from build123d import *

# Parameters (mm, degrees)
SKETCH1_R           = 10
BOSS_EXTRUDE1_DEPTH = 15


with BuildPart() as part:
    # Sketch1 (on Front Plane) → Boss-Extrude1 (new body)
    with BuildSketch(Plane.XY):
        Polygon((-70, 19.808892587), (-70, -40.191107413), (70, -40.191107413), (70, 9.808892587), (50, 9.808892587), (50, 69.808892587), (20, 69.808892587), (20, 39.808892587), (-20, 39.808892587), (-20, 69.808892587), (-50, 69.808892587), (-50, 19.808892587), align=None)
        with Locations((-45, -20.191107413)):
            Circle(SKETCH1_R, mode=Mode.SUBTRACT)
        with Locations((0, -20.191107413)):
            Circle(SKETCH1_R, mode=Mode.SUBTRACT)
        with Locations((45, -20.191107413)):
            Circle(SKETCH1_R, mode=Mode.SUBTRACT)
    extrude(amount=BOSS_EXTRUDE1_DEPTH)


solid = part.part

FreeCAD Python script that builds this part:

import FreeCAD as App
import Part
import Sketcher
from FreeCAD import Vector
Q = App.Units.Quantity


def add_polygon(sketch, points):
    """Adds a closed chain of lines whose ends are joined by coincident constraints."""
    first, n = sketch.GeometryCount, len(points)
    for a, b in zip(points, points[1:] + points[:1]):
        sketch.addGeometry(Part.LineSegment(App.Vector(*a, 0), App.Vector(*b, 0)), False)
    for i in range(n):
        sketch.addConstraint(Sketcher.Constraint("Coincident", first + i, 2, first + (i + 1) % n, 1))

doc = App.newDocument("Part")
params = doc.addObject("Spreadsheet::Sheet", "Params")
for row, (alias, value) in enumerate([
    ("sketch1_diameter", "20 mm"),
    ("sketch1_width", "140 mm"),
    ("sketch1_width2", "20 mm"),
    ("sketch1_width3", "30 mm"),
    ("sketch1_height", "60 mm"),
    ("pad1_length", "15 mm"),
], start=1):
    params.set(f"A{row}", alias)
    params.set(f"B{row}", "=" + value)
    params.setAlias(f"B{row}", alias)

body = doc.addObject("PartDesign::Body", "Body")

# Sketch on XY plane
sketch1 = body.newObject("Sketcher::SketchObject", "Sketch")
sketch1.AttachmentSupport = (doc.getObject("XY_Plane"), [""])
sketch1.MapMode = "FlatFace"
add_polygon(sketch1, [(-70, 19.808893), (-70, -40.191107), (70, -40.191107), (70, 9.808893), (50, 9.808893), (50, 69.808893), (20, 69.808893), (20, 39.808893), (-20, 39.808893), (-20, 69.808893), (-50, 69.808893), (-50, 19.808893)])  # lines 0-11
sketch1.addGeometry(Part.Circle(Vector(-45, -20.191107, 0), Vector(0, 0, 1), 10), False)  # 12
sketch1.addGeometry(Part.Circle(Vector(0, -20.191107, 0), Vector(0, 0, 1), 10), False)  # 13
sketch1.addGeometry(Part.Circle(Vector(45, -20.191107, 0), Vector(0, 0, 1), 10), False)  # 14
sketch1.addConstraint(Sketcher.Constraint("Vertical", 0))
sketch1.addConstraint(Sketcher.Constraint("Horizontal", 1))
sketch1.addConstraint(Sketcher.Constraint("Vertical", 2))
sketch1.addConstraint(Sketcher.Constraint("Horizontal", 3))
sketch1.addConstraint(Sketcher.Constraint("Vertical", 4))
sketch1.addConstraint(Sketcher.Constraint("Horizontal", 5))
sketch1.addConstraint(Sketcher.Constraint("Vertical", 6))
sketch1.addConstraint(Sketcher.Constraint("Horizontal", 7))
sketch1.addConstraint(Sketcher.Constraint("Vertical", 8))
sketch1.addConstraint(Sketcher.Constraint("Horizontal", 9))
sketch1.addConstraint(Sketcher.Constraint("Vertical", 10))
sketch1.addConstraint(Sketcher.Constraint("Horizontal", 11))
sketch1.addConstraint(Sketcher.Constraint("Equal", 12, 13))
sketch1.addConstraint(Sketcher.Constraint("Equal", 13, 14))
sketch1.addConstraint(Sketcher.Constraint("Symmetric", 12, 3, 14, 3, -2))
sketch1.addConstraint(Sketcher.Constraint("Symmetric", 5, 2, 8, 2, -2))
sketch1.addConstraint(Sketcher.Constraint("PointOnObject", 13, 3, -2))
sketch1.addConstraint(Sketcher.Constraint("Horizontal", 12, 3, 13, 3))
sketch1.addConstraint(Sketcher.Constraint("Equal", 5, 9))
sketch1.addConstraint(Sketcher.Constraint("Equal", 3, 11))
sketch1.addConstraint(Sketcher.Constraint("Equal", 0, 4))
sketch1.addConstraint(Sketcher.Constraint("Equal", 9, 6))
sketch1.addConstraint(Sketcher.Constraint("Diameter", 12, Q("20 mm")))
sketch1.addConstraint(Sketcher.Constraint("DistanceX", 1, 1, 1, 2, Q("140 mm")))
sketch1.addConstraint(Sketcher.Constraint("DistanceX", 3, 2, 3, 1, Q("20 mm")))
sketch1.addConstraint(Sketcher.Constraint("DistanceX", 5, 2, 5, 1, Q("30 mm")))
sketch1.addConstraint(Sketcher.Constraint("DistanceY", 0, 2, 0, 1, Q("60 mm")))
sketch1.addConstraint(Sketcher.Constraint("DistanceY", 2, 1, 2, 2, Q("50 mm")))
sketch1.addConstraint(Sketcher.Constraint("DistanceX", 12, 3, -1, 1, Q("45 mm")))
sketch1.addConstraint(Sketcher.Constraint("DistanceY", 0, 2, 12, 3, Q("20 mm")))
sketch1.addConstraint(Sketcher.Constraint("DistanceY", 12, 3, -1, 1, Q("20.191107 mm")))
sketch1.setExpression("Constraints[34]", "Params.sketch1_diameter")
sketch1.setExpression("Constraints[35]", "Params.sketch1_width")
sketch1.setExpression("Constraints[36]", "Params.sketch1_width2")
sketch1.setExpression("Constraints[37]", "Params.sketch1_width3")
sketch1.setExpression("Constraints[38]", "Params.sketch1_height")
pad1 = body.newObject("PartDesign::Pad", "Pad")
pad1.Profile = sketch1
pad1.setExpression("Length", "Params.pad1_length")

doc.recompute()
